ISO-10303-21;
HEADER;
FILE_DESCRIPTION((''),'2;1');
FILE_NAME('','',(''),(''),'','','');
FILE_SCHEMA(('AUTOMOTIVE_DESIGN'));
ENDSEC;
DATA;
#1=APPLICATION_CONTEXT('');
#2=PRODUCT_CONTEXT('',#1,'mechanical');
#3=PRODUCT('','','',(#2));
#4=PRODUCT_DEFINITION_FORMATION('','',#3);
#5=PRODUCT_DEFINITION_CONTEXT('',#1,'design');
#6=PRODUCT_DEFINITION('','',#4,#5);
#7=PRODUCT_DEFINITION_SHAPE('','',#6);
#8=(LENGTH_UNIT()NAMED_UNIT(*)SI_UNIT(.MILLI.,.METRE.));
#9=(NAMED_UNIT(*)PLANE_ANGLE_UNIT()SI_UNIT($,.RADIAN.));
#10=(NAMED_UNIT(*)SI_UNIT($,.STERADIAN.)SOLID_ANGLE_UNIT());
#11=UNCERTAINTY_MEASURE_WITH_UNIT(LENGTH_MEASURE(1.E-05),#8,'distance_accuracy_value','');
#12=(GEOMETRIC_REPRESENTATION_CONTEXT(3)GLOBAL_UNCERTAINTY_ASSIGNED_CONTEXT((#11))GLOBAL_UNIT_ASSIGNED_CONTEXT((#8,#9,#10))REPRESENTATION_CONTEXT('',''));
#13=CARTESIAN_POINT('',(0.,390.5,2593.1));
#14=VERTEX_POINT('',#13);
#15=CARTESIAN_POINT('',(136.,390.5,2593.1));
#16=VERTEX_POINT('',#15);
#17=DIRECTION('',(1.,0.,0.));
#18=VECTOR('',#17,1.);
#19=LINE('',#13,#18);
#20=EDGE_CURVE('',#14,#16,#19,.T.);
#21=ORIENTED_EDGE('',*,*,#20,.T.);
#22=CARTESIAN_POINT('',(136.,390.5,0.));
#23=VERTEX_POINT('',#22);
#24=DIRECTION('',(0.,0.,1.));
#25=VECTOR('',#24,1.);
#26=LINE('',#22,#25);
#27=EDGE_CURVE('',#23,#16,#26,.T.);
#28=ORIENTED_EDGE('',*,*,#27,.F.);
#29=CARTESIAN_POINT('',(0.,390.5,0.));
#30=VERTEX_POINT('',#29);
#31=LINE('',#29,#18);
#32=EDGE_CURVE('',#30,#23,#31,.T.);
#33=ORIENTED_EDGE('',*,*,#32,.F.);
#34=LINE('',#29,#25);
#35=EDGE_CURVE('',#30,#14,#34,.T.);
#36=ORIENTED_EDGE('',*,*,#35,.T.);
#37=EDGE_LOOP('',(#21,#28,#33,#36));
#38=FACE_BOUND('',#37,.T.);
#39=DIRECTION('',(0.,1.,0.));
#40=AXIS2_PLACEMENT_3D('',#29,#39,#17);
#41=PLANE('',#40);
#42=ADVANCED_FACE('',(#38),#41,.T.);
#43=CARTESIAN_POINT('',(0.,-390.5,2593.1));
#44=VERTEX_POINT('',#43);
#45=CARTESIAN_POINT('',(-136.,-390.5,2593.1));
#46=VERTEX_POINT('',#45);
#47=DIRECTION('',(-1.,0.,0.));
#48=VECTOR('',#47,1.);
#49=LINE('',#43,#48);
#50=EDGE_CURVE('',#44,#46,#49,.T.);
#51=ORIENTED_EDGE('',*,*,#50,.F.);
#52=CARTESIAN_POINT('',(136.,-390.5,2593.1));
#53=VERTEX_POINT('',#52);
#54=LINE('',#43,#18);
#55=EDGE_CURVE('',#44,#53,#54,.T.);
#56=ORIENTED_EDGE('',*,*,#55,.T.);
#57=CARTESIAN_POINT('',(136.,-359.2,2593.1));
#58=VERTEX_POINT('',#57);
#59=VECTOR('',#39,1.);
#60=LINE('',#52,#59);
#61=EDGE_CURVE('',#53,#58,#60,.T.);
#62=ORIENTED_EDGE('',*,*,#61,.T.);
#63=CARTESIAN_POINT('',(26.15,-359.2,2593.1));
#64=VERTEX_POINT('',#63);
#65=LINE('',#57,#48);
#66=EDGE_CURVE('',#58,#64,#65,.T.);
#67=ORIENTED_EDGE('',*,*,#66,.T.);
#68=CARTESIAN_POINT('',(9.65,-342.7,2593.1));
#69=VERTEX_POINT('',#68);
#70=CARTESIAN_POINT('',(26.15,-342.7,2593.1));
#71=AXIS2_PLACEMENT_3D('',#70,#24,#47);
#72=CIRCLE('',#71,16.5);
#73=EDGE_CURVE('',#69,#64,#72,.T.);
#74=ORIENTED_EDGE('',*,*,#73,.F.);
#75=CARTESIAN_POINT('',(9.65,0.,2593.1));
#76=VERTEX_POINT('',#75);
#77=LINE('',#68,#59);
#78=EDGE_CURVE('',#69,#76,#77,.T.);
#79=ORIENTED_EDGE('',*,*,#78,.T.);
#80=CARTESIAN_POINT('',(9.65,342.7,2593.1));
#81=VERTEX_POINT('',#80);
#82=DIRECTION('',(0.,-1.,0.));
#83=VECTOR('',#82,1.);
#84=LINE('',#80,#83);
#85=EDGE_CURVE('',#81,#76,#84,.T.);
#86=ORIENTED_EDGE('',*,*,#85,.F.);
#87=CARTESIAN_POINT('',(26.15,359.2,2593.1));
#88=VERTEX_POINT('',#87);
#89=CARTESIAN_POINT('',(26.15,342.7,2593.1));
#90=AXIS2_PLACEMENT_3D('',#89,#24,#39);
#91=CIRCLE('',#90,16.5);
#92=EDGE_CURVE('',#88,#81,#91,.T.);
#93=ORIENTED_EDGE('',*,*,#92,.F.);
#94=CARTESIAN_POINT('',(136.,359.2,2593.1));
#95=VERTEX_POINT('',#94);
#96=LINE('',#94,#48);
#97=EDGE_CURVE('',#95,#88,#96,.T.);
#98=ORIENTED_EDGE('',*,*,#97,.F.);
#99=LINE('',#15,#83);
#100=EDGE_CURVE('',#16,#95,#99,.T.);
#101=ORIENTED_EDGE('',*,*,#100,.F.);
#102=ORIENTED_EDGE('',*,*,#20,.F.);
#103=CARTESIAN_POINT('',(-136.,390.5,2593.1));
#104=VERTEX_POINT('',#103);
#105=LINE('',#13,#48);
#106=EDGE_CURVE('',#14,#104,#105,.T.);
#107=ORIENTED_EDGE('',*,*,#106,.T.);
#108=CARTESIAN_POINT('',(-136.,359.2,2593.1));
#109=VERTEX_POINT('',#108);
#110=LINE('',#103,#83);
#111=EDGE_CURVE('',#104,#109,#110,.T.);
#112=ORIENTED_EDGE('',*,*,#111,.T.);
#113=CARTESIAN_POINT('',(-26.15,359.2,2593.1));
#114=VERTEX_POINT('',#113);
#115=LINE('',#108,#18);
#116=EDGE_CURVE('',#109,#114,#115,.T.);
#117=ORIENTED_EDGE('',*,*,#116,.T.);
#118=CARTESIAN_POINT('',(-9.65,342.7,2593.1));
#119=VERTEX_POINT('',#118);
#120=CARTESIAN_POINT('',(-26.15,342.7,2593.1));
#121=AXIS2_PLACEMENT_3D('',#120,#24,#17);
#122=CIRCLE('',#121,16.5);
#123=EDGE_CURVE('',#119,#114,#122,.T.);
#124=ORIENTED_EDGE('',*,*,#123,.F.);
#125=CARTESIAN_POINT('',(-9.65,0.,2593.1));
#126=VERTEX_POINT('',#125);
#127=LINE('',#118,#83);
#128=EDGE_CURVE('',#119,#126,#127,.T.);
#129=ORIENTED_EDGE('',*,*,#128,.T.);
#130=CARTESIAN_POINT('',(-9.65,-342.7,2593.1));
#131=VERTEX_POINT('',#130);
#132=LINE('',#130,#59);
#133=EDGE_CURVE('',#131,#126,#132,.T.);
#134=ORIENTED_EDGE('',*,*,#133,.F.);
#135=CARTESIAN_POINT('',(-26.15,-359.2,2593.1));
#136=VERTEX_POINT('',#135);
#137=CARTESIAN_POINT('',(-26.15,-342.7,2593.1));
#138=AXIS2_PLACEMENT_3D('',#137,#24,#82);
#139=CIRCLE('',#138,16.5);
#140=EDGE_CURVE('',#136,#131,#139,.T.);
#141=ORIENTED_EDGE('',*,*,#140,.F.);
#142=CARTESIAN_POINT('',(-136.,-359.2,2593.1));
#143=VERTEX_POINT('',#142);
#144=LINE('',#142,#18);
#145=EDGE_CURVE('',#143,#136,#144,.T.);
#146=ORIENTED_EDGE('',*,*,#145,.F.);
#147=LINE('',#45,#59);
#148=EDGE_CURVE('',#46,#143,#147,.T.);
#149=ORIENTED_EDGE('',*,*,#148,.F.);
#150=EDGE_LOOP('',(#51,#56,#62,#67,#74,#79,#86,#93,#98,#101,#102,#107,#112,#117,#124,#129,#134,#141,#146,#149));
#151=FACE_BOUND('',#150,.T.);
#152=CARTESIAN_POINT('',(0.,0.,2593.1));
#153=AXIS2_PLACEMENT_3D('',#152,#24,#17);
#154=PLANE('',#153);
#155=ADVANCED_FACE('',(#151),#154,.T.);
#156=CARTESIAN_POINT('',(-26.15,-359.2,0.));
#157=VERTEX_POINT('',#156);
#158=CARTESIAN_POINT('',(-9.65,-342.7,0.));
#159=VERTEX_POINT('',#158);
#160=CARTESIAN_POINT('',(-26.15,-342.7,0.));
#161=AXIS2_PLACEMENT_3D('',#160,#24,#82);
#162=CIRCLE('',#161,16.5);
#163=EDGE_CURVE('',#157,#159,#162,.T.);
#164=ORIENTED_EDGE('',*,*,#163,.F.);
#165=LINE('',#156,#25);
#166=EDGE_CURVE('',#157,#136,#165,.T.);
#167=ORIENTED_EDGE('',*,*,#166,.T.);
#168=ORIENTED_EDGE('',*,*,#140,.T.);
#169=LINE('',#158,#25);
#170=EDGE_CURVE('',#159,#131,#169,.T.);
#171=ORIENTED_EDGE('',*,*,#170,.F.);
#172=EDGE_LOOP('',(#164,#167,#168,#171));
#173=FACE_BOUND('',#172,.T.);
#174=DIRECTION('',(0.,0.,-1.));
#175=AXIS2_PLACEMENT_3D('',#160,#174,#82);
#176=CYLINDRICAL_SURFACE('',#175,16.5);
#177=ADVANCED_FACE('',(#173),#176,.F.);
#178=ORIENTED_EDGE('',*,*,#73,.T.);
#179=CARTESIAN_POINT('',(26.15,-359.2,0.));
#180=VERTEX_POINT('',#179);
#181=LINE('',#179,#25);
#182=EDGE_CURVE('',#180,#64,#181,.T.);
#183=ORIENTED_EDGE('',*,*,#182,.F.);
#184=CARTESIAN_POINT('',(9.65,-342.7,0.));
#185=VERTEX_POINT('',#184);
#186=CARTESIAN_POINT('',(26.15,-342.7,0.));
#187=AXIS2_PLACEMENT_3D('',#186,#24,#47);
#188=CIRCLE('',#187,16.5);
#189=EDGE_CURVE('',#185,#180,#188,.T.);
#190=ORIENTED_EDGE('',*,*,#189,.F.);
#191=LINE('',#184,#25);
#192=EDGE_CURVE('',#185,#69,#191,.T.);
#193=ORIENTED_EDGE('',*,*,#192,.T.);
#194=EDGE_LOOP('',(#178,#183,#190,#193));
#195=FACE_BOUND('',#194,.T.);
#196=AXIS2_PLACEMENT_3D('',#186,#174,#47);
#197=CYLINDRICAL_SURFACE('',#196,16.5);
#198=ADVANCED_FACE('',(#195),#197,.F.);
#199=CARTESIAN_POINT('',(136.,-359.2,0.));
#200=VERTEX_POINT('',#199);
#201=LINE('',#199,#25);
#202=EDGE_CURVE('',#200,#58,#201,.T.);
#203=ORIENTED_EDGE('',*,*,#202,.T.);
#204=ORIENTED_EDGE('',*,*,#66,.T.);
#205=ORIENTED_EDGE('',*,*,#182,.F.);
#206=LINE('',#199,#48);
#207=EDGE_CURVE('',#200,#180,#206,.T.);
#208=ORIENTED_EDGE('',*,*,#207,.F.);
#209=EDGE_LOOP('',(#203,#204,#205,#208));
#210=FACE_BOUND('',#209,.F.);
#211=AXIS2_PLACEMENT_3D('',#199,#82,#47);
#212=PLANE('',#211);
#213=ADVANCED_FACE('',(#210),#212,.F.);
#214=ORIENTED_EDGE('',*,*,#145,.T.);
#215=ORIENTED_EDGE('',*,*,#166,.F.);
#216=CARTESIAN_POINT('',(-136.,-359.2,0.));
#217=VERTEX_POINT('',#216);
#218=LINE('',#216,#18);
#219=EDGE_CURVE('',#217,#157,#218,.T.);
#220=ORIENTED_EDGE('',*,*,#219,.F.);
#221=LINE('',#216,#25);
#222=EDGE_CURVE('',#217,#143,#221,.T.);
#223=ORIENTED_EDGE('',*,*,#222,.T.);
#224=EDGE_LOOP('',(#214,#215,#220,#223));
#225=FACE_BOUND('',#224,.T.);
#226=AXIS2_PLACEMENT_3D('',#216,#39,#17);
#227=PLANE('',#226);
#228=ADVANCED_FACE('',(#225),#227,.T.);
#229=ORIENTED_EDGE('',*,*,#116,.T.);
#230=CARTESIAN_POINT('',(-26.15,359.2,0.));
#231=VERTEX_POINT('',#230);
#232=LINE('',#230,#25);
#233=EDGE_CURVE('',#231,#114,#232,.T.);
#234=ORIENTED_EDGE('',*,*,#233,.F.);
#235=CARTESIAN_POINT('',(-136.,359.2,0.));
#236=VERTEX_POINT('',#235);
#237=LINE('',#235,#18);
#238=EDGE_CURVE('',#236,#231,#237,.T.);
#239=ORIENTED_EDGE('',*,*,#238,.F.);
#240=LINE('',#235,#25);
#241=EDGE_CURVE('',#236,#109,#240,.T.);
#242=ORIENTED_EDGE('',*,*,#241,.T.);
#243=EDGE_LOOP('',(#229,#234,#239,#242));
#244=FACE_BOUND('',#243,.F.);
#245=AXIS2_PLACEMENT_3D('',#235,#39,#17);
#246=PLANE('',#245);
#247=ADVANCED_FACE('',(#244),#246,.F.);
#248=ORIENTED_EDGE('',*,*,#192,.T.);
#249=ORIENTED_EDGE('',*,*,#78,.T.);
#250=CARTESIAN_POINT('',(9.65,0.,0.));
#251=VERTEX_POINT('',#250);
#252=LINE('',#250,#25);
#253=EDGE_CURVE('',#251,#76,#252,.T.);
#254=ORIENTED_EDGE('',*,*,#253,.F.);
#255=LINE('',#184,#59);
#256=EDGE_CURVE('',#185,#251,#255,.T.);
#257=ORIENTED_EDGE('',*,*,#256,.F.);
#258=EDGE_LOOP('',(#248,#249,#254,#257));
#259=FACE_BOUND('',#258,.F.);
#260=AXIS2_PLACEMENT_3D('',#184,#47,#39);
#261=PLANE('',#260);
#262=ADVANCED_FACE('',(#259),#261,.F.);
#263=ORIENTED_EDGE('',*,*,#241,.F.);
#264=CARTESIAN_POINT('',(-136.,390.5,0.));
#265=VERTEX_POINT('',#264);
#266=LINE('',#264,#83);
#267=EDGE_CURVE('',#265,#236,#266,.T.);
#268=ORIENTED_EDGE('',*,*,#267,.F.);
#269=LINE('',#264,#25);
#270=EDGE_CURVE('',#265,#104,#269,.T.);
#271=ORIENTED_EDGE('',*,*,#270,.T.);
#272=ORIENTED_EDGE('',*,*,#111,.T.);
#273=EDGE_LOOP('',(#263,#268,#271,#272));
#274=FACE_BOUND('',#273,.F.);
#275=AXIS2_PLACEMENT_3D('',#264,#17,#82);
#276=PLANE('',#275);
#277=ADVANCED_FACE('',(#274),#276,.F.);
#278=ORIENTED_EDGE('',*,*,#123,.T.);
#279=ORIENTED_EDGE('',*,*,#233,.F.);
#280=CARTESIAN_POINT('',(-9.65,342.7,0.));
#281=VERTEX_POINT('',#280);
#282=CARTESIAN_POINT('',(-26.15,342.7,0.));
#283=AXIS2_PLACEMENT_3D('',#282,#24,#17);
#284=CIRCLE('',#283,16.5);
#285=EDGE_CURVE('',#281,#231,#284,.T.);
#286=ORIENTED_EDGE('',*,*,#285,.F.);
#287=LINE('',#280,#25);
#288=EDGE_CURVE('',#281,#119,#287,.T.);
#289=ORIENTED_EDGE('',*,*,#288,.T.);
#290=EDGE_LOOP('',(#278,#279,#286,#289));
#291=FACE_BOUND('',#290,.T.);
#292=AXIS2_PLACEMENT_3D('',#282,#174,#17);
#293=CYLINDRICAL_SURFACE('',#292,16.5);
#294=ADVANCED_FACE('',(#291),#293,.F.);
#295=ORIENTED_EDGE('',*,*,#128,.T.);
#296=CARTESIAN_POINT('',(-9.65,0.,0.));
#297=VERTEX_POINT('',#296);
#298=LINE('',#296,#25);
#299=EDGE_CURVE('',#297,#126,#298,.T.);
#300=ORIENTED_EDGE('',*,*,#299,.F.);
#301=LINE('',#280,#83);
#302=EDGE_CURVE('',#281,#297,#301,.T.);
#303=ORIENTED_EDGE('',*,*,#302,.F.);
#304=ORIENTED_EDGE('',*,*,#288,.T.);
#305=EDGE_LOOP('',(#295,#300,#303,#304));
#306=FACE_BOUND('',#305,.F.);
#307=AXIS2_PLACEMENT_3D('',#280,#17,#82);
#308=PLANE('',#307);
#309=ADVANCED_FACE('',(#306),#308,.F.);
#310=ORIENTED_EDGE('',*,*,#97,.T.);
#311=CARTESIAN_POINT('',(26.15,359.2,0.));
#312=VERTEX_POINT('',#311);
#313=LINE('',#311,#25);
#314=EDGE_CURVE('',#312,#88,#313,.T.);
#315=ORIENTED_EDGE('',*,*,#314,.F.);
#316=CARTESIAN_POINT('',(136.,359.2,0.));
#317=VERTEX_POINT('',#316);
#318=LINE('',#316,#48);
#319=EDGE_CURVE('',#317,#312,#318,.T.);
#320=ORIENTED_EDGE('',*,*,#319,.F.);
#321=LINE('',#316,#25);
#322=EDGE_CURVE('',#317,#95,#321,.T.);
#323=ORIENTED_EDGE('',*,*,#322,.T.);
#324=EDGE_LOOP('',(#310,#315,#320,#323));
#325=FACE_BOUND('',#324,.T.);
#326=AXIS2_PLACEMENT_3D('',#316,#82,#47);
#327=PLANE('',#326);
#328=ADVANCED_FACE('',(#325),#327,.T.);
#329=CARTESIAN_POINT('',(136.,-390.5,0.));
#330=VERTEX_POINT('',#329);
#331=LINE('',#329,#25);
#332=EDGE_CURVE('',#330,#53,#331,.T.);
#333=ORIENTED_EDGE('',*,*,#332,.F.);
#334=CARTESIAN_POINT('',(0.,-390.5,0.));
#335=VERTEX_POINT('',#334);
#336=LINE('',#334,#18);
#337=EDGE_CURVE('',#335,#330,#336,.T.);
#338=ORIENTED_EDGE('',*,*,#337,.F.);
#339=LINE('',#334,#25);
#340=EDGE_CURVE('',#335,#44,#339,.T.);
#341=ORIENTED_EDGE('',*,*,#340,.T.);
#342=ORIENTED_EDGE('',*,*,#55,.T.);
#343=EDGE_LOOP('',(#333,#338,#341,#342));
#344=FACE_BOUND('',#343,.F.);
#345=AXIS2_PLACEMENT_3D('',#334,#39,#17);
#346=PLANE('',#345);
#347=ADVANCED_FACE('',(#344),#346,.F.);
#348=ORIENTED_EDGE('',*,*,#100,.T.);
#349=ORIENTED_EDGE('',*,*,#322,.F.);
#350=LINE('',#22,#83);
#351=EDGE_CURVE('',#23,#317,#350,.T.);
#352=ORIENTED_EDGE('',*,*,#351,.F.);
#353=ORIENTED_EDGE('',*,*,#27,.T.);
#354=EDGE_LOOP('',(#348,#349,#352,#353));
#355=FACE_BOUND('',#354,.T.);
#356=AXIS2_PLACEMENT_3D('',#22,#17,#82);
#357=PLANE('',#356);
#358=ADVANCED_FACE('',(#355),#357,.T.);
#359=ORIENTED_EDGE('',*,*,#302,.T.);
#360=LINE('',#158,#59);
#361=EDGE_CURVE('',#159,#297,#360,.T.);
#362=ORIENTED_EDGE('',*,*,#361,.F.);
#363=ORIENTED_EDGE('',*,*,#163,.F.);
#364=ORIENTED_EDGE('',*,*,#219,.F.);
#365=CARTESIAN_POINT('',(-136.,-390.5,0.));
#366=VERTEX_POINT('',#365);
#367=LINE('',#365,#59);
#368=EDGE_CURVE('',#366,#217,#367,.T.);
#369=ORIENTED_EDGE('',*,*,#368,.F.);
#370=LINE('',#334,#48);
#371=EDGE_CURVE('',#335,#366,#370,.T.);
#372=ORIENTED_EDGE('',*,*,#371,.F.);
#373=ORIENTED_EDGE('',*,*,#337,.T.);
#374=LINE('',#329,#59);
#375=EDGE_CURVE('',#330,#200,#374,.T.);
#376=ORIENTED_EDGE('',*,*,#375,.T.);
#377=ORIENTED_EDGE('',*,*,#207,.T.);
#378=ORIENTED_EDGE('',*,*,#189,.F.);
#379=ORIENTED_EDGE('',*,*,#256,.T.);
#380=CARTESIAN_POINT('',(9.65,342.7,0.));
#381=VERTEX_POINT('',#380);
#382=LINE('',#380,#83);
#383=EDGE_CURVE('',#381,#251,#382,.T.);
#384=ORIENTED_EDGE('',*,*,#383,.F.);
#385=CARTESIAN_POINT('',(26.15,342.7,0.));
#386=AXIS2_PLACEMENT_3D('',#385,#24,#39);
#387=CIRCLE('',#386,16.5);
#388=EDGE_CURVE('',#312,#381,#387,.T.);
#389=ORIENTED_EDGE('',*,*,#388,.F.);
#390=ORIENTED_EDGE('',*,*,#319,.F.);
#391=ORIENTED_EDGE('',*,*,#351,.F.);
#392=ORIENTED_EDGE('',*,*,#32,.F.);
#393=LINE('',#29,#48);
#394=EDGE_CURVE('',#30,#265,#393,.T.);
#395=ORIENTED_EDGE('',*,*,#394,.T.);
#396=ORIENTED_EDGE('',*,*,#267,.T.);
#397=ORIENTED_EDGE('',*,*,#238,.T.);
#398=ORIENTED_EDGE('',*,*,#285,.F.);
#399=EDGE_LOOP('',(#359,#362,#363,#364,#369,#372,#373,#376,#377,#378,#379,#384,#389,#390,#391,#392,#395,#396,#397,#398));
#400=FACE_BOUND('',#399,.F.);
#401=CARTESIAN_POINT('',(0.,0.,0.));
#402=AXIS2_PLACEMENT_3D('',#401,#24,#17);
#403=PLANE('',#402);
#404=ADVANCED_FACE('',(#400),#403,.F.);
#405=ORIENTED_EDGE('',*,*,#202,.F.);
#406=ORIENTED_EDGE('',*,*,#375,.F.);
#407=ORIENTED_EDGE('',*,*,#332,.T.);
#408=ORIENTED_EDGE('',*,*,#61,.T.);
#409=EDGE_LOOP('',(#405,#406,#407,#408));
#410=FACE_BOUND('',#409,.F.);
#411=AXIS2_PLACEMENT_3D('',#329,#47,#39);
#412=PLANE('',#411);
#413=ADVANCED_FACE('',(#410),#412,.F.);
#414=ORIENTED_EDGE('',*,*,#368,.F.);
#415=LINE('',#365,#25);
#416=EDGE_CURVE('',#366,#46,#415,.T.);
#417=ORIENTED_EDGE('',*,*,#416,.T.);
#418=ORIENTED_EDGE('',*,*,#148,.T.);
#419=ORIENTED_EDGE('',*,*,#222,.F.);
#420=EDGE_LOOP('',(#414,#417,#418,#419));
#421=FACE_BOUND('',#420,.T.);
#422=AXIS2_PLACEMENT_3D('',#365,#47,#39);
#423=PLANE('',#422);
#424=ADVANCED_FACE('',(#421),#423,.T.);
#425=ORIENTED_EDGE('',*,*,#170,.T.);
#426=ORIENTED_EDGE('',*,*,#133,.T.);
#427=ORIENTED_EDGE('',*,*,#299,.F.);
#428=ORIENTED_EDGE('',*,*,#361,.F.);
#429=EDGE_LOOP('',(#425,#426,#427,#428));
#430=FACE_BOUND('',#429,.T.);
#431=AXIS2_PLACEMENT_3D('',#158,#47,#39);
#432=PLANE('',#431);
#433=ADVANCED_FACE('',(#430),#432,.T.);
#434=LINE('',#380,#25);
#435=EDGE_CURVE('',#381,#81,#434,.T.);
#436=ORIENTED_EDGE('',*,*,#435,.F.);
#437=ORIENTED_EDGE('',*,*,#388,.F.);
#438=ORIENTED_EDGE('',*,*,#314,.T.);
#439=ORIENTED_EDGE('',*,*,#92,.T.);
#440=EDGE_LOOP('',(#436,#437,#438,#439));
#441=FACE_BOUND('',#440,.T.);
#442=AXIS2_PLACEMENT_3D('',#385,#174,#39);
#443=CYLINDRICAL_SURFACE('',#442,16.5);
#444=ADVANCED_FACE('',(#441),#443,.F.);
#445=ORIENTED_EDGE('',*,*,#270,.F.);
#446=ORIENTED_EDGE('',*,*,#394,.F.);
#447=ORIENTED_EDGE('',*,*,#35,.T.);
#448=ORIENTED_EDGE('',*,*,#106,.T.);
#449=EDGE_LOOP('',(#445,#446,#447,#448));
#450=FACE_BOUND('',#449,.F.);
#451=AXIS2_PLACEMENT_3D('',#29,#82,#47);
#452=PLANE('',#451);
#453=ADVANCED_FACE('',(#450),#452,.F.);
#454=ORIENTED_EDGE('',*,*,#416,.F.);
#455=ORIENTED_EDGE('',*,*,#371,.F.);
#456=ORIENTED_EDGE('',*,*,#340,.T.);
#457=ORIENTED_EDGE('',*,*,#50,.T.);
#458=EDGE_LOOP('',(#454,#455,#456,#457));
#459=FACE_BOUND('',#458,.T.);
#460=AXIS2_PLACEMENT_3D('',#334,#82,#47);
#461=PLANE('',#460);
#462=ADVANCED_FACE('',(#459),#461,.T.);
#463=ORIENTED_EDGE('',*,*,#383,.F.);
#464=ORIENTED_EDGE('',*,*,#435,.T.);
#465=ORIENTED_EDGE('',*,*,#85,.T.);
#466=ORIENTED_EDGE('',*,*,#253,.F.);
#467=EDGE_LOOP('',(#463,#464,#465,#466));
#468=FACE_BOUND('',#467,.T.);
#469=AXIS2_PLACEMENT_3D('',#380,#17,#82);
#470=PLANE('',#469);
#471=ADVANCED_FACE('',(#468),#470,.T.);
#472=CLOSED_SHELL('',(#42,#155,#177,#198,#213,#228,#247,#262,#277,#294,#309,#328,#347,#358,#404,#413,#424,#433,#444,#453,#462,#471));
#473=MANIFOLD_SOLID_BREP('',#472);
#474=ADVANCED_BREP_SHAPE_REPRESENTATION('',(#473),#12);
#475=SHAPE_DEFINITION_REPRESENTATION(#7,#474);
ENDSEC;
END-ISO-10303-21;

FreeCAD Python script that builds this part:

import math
import FreeCAD as App
import Part
import Sketcher
Q = App.Units.Quantity

doc = App.newDocument("Part")
body = doc.addObject("PartDesign::Body", "Body")

# Sketch on XY plane
sketch1 = doc.addObject("Sketcher::SketchObject", "Sketch")
body.addObject(sketch1)
sketch1.AttachmentSupport = (doc.XY_Plane, [""])
sketch1.MapMode = "FlatFace"
sketch1.addGeometry(Part.LineSegment(App.Vector(-136, -359, 0), App.Vector(-136, -390, 0)), False)
sketch1.addGeometry(Part.LineSegment(App.Vector(-136, -390, 0), App.Vector(136, -390, 0)), False)
sketch1.addGeometry(Part.LineSegment(App.Vector(136, -390, 0), App.Vector(136, -359, 0)), False)
sketch1.addGeometry(Part.LineSegment(App.Vector(136, -359, 0), App.Vector(26, -359, 0)), False)
sketch1.addGeometry(Part.ArcOfCircle(Part.Circle(App.Vector(26, -343, 0), App.Vector(0, 0, 1), 16), math.radians(180), math.radians(270)), False)
sketch1.addGeometry(Part.LineSegment(App.Vector(10, -343, 0), App.Vector(10, 343, 0)), False)
sketch1.addGeometry(Part.ArcOfCircle(Part.Circle(App.Vector(26, 343, 0), App.Vector(0, 0, 1), 16), math.radians(90), math.radians(180)), False)
sketch1.addGeometry(Part.LineSegment(App.Vector(26, 359, 0), App.Vector(136, 359, 0)), False)
sketch1.addGeometry(Part.LineSegment(App.Vector(136, 359, 0), App.Vector(136, 390, 0)), False)
sketch1.addGeometry(Part.LineSegment(App.Vector(136, 390, 0), App.Vector(-136, 390, 0)), False)
sketch1.addGeometry(Part.LineSegment(App.Vector(-136, 390, 0), App.Vector(-136, 359, 0)), False)
sketch1.addGeometry(Part.LineSegment(App.Vector(-136, 359, 0), App.Vector(-26, 359, 0)), False)
sketch1.addGeometry(Part.ArcOfCircle(Part.Circle(App.Vector(-26, 343, 0), App.Vector(0, 0, 1), 16), math.radians(0), math.radians(90)), False)
sketch1.addGeometry(Part.LineSegment(App.Vector(-10, 343, 0), App.Vector(-10, -343, 0)), False)
sketch1.addGeometry(Part.ArcOfCircle(Part.Circle(App.Vector(-26, -343, 0), App.Vector(0, 0, 1), 16), math.radians(-90), math.radians(0)), False)
sketch1.addGeometry(Part.LineSegment(App.Vector(-26, -359, 0), App.Vector(-136, -359, 0)), False)
sketch1.addConstraint(Sketcher.Constraint("Coincident", 0, 2, 1, 1))
sketch1.addConstraint(Sketcher.Constraint("Coincident", 1, 2, 2, 1))
sketch1.addConstraint(Sketcher.Constraint("Coincident", 2, 2, 3, 1))
sketch1.addConstraint(Sketcher.Constraint("Tangent", 3, 2, 4, 2))
sketch1.addConstraint(Sketcher.Constraint("Tangent", 4, 1, 5, 1))
sketch1.addConstraint(Sketcher.Constraint("Tangent", 5, 2, 6, 2))
sketch1.addConstraint(Sketcher.Constraint("Tangent", 6, 1, 7, 1))
sketch1.addConstraint(Sketcher.Constraint("Coincident", 7, 2, 8, 1))
sketch1.addConstraint(Sketcher.Constraint("Coincident", 8, 2, 9, 1))
sketch1.addConstraint(Sketcher.Constraint("Coincident", 9, 2, 10, 1))
sketch1.addConstraint(Sketcher.Constraint("Coincident", 10, 2, 11, 1))
sketch1.addConstraint(Sketcher.Constraint("Tangent", 11, 2, 12, 2))
sketch1.addConstraint(Sketcher.Constraint("Tangent", 12, 1, 13, 1))
sketch1.addConstraint(Sketcher.Constraint("Tangent", 13, 2, 14, 2))
sketch1.addConstraint(Sketcher.Constraint("Tangent", 14, 1, 15, 1))
sketch1.addConstraint(Sketcher.Constraint("Coincident", 15, 2, 0, 1))
sketch1.addConstraint(Sketcher.Constraint("Vertical", 0))
sketch1.addConstraint(Sketcher.Constraint("Horizontal", 1))
sketch1.addConstraint(Sketcher.Constraint("Vertical", 2))
sketch1.addConstraint(Sketcher.Constraint("Horizontal", 3))
sketch1.addConstraint(Sketcher.Constraint("Vertical", 5))
sketch1.addConstraint(Sketcher.Constraint("Horizontal", 7))
sketch1.addConstraint(Sketcher.Constraint("Vertical", 8))
sketch1.addConstraint(Sketcher.Constraint("Horizontal", 9))
sketch1.addConstraint(Sketcher.Constraint("Vertical", 10))
sketch1.addConstraint(Sketcher.Constraint("Horizontal", 11))
sketch1.addConstraint(Sketcher.Constraint("Vertical", 13))
sketch1.addConstraint(Sketcher.Constraint("Horizontal", 15))
sketch1.addConstraint(Sketcher.Constraint("Equal", 4, 6))
sketch1.addConstraint(Sketcher.Constraint("Equal", 6, 12))
sketch1.addConstraint(Sketcher.Constraint("Equal", 12, 14))
sketch1.addConstraint(Sketcher.Constraint("Symmetric", 4, 3, 12, 3, -1, 1))
sketch1.addConstraint(Sketcher.Constraint("Symmetric", 0, 2, 8, 2, -1, 1))
sketch1.addConstraint(Sketcher.Constraint("Symmetric", 7, 2, 10, 2, -2))
sketch1.addConstraint(Sketcher.Constraint("Symmetric", 2, 2, 15, 2, -2))
sketch1.addConstraint(Sketcher.Constraint("Radius", 4, Q("16.5 mm")))
sketch1.addConstraint(Sketcher.Constraint("DistanceY", 0, 2, 0, 1, Q("31.3 mm")))
sketch1.addConstraint(Sketcher.Constraint("DistanceX", 0, 2, -1, 1, Q("136 mm")))
sketch1.addConstraint(Sketcher.Constraint("DistanceY", 0, 2, -1, 1, Q("390.5 mm")))
sketch1.addConstraint(Sketcher.Constraint("DistanceX", -1, 1, 4, 1, Q("9.65 mm")))
pad1 = doc.addObject("PartDesign::Pad", "Pad")
body.addObject(pad1)
pad1.Profile = sketch1
pad1.Length = 2593.1

doc.recompute()
